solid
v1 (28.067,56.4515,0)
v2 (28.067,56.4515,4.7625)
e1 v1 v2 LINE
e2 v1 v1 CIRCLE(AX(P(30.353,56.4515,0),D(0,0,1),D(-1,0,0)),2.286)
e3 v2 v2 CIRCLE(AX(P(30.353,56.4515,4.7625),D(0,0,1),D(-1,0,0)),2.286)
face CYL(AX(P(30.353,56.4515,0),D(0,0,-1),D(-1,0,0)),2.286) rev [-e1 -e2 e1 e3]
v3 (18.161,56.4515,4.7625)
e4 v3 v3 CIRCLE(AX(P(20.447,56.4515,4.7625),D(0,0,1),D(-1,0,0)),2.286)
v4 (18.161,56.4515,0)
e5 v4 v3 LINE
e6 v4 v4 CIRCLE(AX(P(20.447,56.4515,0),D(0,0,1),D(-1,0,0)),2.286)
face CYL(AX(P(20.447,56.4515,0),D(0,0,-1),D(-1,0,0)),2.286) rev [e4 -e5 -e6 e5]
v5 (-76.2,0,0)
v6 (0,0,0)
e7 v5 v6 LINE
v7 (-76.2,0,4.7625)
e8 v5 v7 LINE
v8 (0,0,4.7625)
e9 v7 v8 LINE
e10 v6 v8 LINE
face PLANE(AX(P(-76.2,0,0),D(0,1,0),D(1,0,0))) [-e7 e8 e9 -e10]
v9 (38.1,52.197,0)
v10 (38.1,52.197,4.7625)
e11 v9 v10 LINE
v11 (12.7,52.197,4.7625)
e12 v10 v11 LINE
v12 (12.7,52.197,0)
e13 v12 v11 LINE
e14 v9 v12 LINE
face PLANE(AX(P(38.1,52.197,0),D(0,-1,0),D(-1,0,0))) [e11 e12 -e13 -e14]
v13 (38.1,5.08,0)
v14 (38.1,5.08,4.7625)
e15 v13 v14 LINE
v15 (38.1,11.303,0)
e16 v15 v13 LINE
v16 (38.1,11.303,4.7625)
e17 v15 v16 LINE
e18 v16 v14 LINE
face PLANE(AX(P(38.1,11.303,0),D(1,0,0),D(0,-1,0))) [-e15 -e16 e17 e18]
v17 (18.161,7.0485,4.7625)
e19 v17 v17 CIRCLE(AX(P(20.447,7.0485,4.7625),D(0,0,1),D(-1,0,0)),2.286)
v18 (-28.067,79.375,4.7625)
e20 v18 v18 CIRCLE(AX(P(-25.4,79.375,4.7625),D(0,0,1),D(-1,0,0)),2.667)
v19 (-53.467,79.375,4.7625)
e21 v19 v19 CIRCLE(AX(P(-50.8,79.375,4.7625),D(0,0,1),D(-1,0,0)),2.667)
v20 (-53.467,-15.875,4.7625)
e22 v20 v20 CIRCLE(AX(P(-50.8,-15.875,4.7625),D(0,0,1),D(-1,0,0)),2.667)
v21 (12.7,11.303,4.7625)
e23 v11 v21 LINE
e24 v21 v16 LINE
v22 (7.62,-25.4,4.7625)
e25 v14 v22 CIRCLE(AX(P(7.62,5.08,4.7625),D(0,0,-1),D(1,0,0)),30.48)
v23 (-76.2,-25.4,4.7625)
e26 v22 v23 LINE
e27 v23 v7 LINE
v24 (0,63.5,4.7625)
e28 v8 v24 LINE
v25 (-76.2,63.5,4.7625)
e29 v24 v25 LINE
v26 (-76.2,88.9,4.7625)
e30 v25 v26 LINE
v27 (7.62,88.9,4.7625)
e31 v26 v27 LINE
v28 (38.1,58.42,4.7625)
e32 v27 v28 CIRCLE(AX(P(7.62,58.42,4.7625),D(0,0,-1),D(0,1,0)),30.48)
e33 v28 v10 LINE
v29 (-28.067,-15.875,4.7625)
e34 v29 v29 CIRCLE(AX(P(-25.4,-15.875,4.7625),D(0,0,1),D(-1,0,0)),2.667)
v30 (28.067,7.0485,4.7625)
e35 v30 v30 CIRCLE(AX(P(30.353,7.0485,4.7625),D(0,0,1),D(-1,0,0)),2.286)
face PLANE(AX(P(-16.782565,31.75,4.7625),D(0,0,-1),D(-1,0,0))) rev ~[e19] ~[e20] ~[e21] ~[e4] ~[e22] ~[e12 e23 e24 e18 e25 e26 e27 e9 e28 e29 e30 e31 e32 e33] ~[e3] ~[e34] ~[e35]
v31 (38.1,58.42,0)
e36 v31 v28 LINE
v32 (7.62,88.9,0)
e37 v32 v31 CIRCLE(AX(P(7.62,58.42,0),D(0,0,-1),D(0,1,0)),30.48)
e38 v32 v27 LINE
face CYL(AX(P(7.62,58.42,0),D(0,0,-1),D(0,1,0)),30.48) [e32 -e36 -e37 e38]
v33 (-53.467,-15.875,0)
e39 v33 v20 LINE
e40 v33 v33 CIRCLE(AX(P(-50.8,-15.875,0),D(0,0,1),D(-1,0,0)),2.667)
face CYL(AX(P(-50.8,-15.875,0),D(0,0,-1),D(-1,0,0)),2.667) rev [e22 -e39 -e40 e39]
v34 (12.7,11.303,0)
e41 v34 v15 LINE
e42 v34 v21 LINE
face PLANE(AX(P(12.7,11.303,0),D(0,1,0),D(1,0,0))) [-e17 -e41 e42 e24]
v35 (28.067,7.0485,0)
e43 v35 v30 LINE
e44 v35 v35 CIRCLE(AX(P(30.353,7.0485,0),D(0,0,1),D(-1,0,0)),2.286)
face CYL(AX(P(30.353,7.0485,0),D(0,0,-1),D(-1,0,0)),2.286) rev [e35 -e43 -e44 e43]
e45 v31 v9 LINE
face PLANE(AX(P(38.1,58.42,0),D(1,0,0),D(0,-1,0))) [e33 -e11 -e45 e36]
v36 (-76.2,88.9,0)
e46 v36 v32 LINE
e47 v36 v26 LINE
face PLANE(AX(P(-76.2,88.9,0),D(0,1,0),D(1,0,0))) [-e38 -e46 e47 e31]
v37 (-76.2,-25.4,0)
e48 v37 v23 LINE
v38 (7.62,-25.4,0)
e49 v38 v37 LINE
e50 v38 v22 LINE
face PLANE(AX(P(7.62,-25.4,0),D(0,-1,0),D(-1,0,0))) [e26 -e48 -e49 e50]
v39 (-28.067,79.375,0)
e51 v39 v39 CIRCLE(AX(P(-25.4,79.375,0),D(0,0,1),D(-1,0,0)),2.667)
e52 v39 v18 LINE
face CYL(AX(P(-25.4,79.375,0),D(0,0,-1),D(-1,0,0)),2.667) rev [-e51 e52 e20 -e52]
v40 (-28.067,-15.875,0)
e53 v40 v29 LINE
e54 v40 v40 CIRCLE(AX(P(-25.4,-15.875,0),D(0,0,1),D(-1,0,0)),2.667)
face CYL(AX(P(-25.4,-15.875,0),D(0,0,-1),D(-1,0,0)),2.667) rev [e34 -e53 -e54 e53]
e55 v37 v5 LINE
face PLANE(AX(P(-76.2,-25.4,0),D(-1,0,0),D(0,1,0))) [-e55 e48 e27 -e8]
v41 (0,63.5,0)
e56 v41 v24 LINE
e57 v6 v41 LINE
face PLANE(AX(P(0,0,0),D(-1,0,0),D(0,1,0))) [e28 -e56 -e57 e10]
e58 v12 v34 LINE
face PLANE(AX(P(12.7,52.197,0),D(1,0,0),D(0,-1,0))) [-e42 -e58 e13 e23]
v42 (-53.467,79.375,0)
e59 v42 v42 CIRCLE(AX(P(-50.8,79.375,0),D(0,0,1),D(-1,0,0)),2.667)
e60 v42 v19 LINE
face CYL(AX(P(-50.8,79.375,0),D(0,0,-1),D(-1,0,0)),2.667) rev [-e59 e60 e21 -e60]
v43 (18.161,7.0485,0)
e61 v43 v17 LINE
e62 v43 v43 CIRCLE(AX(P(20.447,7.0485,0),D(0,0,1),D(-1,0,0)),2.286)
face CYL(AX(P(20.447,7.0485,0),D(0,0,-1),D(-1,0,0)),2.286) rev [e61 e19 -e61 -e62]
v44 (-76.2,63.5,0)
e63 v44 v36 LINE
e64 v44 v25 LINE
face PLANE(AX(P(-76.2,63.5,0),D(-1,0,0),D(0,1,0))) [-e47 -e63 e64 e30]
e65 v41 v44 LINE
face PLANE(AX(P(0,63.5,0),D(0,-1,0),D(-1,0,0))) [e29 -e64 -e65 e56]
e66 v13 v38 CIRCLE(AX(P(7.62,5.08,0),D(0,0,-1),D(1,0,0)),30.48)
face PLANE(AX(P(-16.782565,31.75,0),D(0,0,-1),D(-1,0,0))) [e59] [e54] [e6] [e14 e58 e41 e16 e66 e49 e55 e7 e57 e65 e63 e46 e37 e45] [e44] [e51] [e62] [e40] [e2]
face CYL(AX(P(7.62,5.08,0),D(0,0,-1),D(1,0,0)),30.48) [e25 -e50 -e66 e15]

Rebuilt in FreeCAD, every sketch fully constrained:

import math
import FreeCAD as App
import Part
import Sketcher
Q = App.Units.Quantity

doc = App.newDocument("Part")
body = doc.addObject("PartDesign::Body", "Body")

# Sketch on XY plane
sketch1 = body.newObject("Sketcher::SketchObject", "Sketch")
sketch1.AttachmentSupport = (doc.getObject("XY_Plane"), [""])
sketch1.MapMode = "FlatFace"
sketch1.addGeometry([
    Part.LineSegment(App.Vector(0, 63.5, 0), App.Vector(0, 0, 0)),  # 0
    Part.LineSegment(App.Vector(0, 0, 0), App.Vector(-76.2, 0, 0)),  # 1
    Part.LineSegment(App.Vector(-76.2, 0, 0), App.Vector(-76.2, -25.4, 0)),  # 2
    Part.LineSegment(App.Vector(-76.2, -25.4, 0), App.Vector(7.62, -25.4, 0)),  # 3
    Part.ArcOfCircle(Part.Circle(App.Vector(7.62, 5.08, 0), App.Vector(0, 0, 1), 30.48), math.radians(-90), math.radians(0)),  # 4
    Part.LineSegment(App.Vector(38.1, 5.08, 0), App.Vector(38.1, 11.303, 0)),  # 5
    Part.LineSegment(App.Vector(38.1, 11.303, 0), App.Vector(12.7, 11.303, 0)),  # 6
    Part.LineSegment(App.Vector(12.7, 11.303, 0), App.Vector(12.7, 52.197, 0)),  # 7
    Part.LineSegment(App.Vector(12.7, 52.197, 0), App.Vector(38.1, 52.197, 0)),  # 8
    Part.LineSegment(App.Vector(38.1, 52.197, 0), App.Vector(38.1, 58.42, 0)),  # 9
    Part.ArcOfCircle(Part.Circle(App.Vector(7.62, 58.42, 0), App.Vector(0, 0, 1), 30.48), math.radians(0), math.radians(90)),  # 10
    Part.LineSegment(App.Vector(7.62, 88.9, 0), App.Vector(-76.2, 88.9, 0)),  # 11
    Part.LineSegment(App.Vector(-76.2, 88.9, 0), App.Vector(-76.2, 63.5, 0)),  # 12
    Part.LineSegment(App.Vector(-76.2, 63.5, 0), App.Vector(0, 63.5, 0)),  # 13
    Part.Circle(App.Vector(30.353, 7.0485, 0), App.Vector(0, 0, 1), 2.286),  # 14
    Part.Circle(App.Vector(20.447, 7.0485, 0), App.Vector(0, 0, 1), 2.286),  # 15
    Part.Circle(App.Vector(-25.4, -15.875, 0), App.Vector(0, 0, 1), 2.667),  # 16
    Part.Circle(App.Vector(-50.8, -15.875, 0), App.Vector(0, 0, 1), 2.667),  # 17
    Part.Circle(App.Vector(30.353, 56.4515, 0), App.Vector(0, 0, 1), 2.286),  # 18
    Part.Circle(App.Vector(20.447, 56.4515, 0), App.Vector(0, 0, 1), 2.286),  # 19
    Part.Circle(App.Vector(-25.4, 79.375, 0), App.Vector(0, 0, 1), 2.667),  # 20
    Part.Circle(App.Vector(-50.8, 79.375, 0), App.Vector(0, 0, 1), 2.667),  # 21
], False)
sketch1.addConstraint([
    Sketcher.Constraint("Coincident", 0, 2, 1, 1),
    Sketcher.Constraint("Coincident", 1, 2, 2, 1),
    Sketcher.Constraint("Coincident", 2, 2, 3, 1),
    Sketcher.Constraint("Tangent", 3, 2, 4, 1),
    Sketcher.Constraint("Tangent", 4, 2, 5, 1),
    Sketcher.Constraint("Coincident", 5, 2, 6, 1),
    Sketcher.Constraint("Coincident", 6, 2, 7, 1),
    Sketcher.Constraint("Coincident", 7, 2, 8, 1),
    Sketcher.Constraint("Coincident", 8, 2, 9, 1),
    Sketcher.Constraint("Tangent", 9, 2, 10, 1),
    Sketcher.Constraint("Tangent", 10, 2, 11, 1),
    Sketcher.Constraint("Coincident", 11, 2, 12, 1),
    Sketcher.Constraint("Coincident", 12, 2, 13, 1),
    Sketcher.Constraint("Coincident", 13, 2, 0, 1),
    Sketcher.Constraint("Vertical", 0),
    Sketcher.Constraint("Horizontal", 1),
    Sketcher.Constraint("Vertical", 2),
    Sketcher.Constraint("Horizontal", 3),
    Sketcher.Constraint("Vertical", 5),
    Sketcher.Constraint("Horizontal", 6),
    Sketcher.Constraint("Vertical", 7),
    Sketcher.Constraint("Horizontal", 8),
    Sketcher.Constraint("Vertical", 9),
    Sketcher.Constraint("Horizontal", 11),
    Sketcher.Constraint("Vertical", 12),
    Sketcher.Constraint("Horizontal", 13),
    Sketcher.Constraint("Coincident", 0, 2, -1, 1),
    Sketcher.Constraint("Equal", 4, 10),
    Sketcher.Constraint("Equal", 14, 15),
    Sketcher.Constraint("Equal", 16, 17),
    Sketcher.Constraint("Equal", 15, 18),
    Sketcher.Constraint("Equal", 18, 19),
    Sketcher.Constraint("Equal", 17, 20),
    Sketcher.Constraint("Equal", 20, 21),
    Sketcher.Constraint("Horizontal", 14, 3, 15, 3),
    Sketcher.Constraint("Horizontal", 16, 3, 17, 3),
    Sketcher.Constraint("Horizontal", 18, 3, 19, 3),
    Sketcher.Constraint("Horizontal", 20, 3, 21, 3),
    Sketcher.Constraint("Vertical", 4, 3, 10, 3),
    Sketcher.Constraint("Vertical", 14, 3, 18, 3),
    Sketcher.Constraint("Vertical", 15, 3, 19, 3),
    Sketcher.Constraint("Vertical", 16, 3, 20, 3),
    Sketcher.Constraint("Vertical", 17, 3, 21, 3),
    Sketcher.Constraint("Vertical", 2, 2, 11, 2),
    Sketcher.Constraint("Equal", 8, 2),
    Sketcher.Constraint("Equal", 5, 9),
    Sketcher.Constraint("Equal", 2, 12),
    Sketcher.Constraint("Radius", 4, Q("1.2 in")),
    Sketcher.Constraint("Diameter", 14, Q("0.18 in")),
    Sketcher.Constraint("Diameter", 16, Q("0.21 in")),
    Sketcher.Constraint("DistanceX", 1, 2, 1, 1, Q("3 in")),
    Sketcher.Constraint("DistanceX", 6, 2, 6, 1, Q("1 in")),
    Sketcher.Constraint("DistanceX", 3, 1, 3, 2, Q("3.3 in")),
    Sketcher.Constraint("DistanceY", 0, 2, 0, 1, Q("2.5 in")),
    Sketcher.Constraint("DistanceX", 16, 3, -1, 1, Q("1 in")),
    Sketcher.Constraint("DistanceX", 17, 3, -1, 1, Q("2 in")),
    Sketcher.Constraint("DistanceY", 7, 1, 7, 2, Q("1.61 in")),
    Sketcher.Constraint("DistanceX", 15, 3, 14, 3, Q("0.39 in")),
    Sketcher.Constraint("DistanceX", -1, 1, 14, 3, Q("1.195 in")),
    Sketcher.Constraint("DistanceY", 16, 3, -1, 1, Q("0.625 in")),
    Sketcher.Constraint("DistanceY", -1, 1, 20, 3, Q("3.125 in")),
    Sketcher.Constraint("DistanceY", 14, 3, 18, 3, Q("1.945 in")),
    Sketcher.Constraint("DistanceY", -1, 1, 14, 3, Q("0.2775 in")),
])
pad1 = body.newObject("PartDesign::Pad", "Pad")
pad1.Profile = sketch1
pad1.Length = Q("0.1875 in")

doc.recompute()
